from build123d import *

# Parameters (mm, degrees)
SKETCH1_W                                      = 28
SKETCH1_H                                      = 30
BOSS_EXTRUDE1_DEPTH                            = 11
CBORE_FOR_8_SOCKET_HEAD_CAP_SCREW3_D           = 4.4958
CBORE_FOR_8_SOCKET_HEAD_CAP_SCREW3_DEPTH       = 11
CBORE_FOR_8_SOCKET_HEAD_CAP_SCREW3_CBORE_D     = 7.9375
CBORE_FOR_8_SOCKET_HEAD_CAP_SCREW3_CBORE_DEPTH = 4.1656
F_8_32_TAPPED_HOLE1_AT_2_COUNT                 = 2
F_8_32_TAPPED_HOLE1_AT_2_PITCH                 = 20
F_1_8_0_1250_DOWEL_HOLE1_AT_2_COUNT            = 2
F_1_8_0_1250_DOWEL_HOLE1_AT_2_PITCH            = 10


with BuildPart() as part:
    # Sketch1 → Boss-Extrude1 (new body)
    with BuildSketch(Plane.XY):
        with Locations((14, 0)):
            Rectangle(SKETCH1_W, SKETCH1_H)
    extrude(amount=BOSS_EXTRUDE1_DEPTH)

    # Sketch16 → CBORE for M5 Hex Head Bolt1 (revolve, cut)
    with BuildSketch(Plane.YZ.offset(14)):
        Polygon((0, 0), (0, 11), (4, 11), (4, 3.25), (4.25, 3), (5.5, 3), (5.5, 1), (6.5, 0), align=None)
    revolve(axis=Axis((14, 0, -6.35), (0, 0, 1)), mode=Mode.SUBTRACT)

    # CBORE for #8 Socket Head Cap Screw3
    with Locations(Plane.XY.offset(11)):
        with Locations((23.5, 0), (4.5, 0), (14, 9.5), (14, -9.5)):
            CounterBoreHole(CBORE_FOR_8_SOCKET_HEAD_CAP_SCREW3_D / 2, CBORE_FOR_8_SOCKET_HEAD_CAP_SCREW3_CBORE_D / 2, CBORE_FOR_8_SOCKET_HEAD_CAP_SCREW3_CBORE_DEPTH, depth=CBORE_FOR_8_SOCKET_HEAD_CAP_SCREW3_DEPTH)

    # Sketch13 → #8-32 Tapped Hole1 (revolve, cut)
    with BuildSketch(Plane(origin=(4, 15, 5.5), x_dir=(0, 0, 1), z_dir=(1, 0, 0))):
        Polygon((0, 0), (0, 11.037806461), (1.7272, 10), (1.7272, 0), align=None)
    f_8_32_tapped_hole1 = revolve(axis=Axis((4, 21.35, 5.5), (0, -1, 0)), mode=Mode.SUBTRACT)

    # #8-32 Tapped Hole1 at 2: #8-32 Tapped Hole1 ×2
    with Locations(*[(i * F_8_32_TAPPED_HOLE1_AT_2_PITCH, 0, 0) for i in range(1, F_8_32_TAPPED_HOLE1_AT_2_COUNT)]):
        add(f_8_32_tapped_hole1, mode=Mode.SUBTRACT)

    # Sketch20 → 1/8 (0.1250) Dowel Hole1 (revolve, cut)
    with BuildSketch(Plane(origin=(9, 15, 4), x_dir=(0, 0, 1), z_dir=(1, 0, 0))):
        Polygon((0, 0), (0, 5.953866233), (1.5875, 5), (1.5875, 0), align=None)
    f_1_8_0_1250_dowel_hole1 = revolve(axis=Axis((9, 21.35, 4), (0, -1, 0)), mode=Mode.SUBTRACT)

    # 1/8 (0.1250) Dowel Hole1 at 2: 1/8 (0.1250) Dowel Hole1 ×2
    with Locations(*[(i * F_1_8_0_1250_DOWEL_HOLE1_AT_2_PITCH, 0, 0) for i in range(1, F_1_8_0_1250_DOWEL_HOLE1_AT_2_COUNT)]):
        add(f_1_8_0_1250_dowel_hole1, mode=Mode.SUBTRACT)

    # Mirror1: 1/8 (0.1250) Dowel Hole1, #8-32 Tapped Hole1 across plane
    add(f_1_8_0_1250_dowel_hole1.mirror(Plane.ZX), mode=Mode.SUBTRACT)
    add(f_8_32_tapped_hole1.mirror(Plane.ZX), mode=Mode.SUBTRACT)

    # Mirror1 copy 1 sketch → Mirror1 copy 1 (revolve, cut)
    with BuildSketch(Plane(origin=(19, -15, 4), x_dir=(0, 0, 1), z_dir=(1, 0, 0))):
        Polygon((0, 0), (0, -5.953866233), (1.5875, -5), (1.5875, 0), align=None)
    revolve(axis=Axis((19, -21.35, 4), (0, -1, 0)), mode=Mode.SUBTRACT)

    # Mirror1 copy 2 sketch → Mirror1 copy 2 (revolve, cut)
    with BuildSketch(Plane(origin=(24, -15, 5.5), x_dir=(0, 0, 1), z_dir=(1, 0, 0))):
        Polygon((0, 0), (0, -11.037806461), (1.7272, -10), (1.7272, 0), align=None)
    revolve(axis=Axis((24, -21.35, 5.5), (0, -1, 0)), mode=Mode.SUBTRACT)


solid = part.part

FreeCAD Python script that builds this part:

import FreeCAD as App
import Part
import Sketcher

V = App.Vector
Q = App.Units.Quantity

doc = App.newDocument("Part")
body = doc.addObject("PartDesign::Body", "Body")

sketch1 = body.newObject("Sketcher::SketchObject", "Sketch")
sketch1.AttachmentSupport = (doc.getObject("XY_Plane"), [""])
sketch1.MapMode = "FlatFace"
sketch1.addGeometry(Part.LineSegment(V(0, 15, 0), V(0, -15, 0)), False)
sketch1.addGeometry(Part.LineSegment(V(0, -15, 0), V(28, -15, 0)), False)
sketch1.addGeometry(Part.LineSegment(V(28, -15, 0), V(28, 15, 0)), False)
sketch1.addGeometry(Part.LineSegment(V(28, 15, 0), V(0, 15, 0)), False)
sketch1.addConstraint(Sketcher.Constraint("Coincident", 0, 2, 1, 1))
sketch1.addConstraint(Sketcher.Constraint("Coincident", 1, 2, 2, 1))
sketch1.addConstraint(Sketcher.Constraint("Coincident", 2, 2, 3, 1))
sketch1.addConstraint(Sketcher.Constraint("Coincident", 3, 2, 0, 1))
sketch1.addConstraint(Sketcher.Constraint("Vertical", 0))
sketch1.addConstraint(Sketcher.Constraint("Horizontal", 1))
sketch1.addConstraint(Sketcher.Constraint("Vertical", 2))
sketch1.addConstraint(Sketcher.Constraint("Horizontal", 3))
sketch1.addConstraint(Sketcher.Constraint("Symmetric", 0, 2, 3, 2, -1, 1))
sketch1.addConstraint(Sketcher.Constraint("DistanceX", 1, 1, 1, 2, 28.0))
sketch1.addConstraint(Sketcher.Constraint("DistanceY", 0, 2, 0, 1, 30.0))
pad1 = body.newObject("PartDesign::Pad", "Pad")
pad1.Profile = sketch1
pad1.Length = 11

sketch2 = body.newObject("Sketcher::SketchObject", "Sketch001")
sketch2.AttachmentSupport = (doc.getObject("YZ_Plane"), [""])
sketch2.MapMode = "FlatFace"
sketch2.AttachmentOffset = App.Placement(V(0, 0, 14), App.Rotation())
sketch2.addGeometry(Part.LineSegment(V(0, 11, 0), V(0, 0, 0)), False)
sketch2.addGeometry(Part.LineSegment(V(0, 0, 0), V(6.5, 0, 0)), False)
sketch2.addGeometry(Part.LineSegment(V(6.5, 0, 0), V(5.5, 1, 0)), False)
sketch2.addGeometry(Part.LineSegment(V(5.5, 1, 0), V(5.5, 3, 0)), False)
sketch2.addGeometry(Part.LineSegment(V(5.5, 3, 0), V(4.25, 3, 0)), False)
sketch2.addGeometry(Part.LineSegment(V(4.25, 3, 0), V(4, 3.25, 0)), False)
sketch2.addGeometry(Part.LineSegment(V(4, 3.25, 0), V(4, 11, 0)), False)
sketch2.addGeometry(Part.LineSegment(V(4, 11, 0), V(0, 11, 0)), False)
sketch2.addConstraint(Sketcher.Constraint("Coincident", 0, 2, 1, 1))
sketch2.addConstraint(Sketcher.Constraint("Coincident", 1, 2, 2, 1))
sketch2.addConstraint(Sketcher.Constraint("Coincident", 2, 2, 3, 1))
sketch2.addConstraint(Sketcher.Constraint("Coincident", 3, 2, 4, 1))
sketch2.addConstraint(Sketcher.Constraint("Coincident", 4, 2, 5, 1))
sketch2.addConstraint(Sketcher.Constraint("Coincident", 5, 2, 6, 1))
sketch2.addConstraint(Sketcher.Constraint("Coincident", 6, 2, 7, 1))
sketch2.addConstraint(Sketcher.Constraint("Coincident", 7, 2, 0, 1))
sketch2.addConstraint(Sketcher.Constraint("Vertical", 0))
sketch2.addConstraint(Sketcher.Constraint("Horizontal", 1))
sketch2.addConstraint(Sketcher.Constraint("Vertical", 3))
sketch2.addConstraint(Sketcher.Constraint("Horizontal", 4))
sketch2.addConstraint(Sketcher.Constraint("Vertical", 6))
sketch2.addConstraint(Sketcher.Constraint("Horizontal", 7))
sketch2.addConstraint(Sketcher.Constraint("Coincident", 0, 2, -1, 1))
sketch2.addConstraint(Sketcher.Constraint("Parallel", 2, 5))
sketch2.addConstraint(Sketcher.Constraint("DistanceX", 7, 2, 7, 1, 4.0))
sketch2.addConstraint(Sketcher.Constraint("DistanceY", 0, 2, 0, 1, 11.0))
sketch2.addConstraint(Sketcher.Constraint("DistanceY", 3, 1, 3, 2, 2.0))
sketch2.addConstraint(Sketcher.Constraint("Angle", 2, Q("135 deg")))
sketch2.addConstraint(Sketcher.Constraint("DistanceX", 1, 1, 1, 2, 6.5))
sketch2.addConstraint(Sketcher.Constraint("DistanceY", -1, 1, 2, 2, 1.0))
sketch2.addConstraint(Sketcher.Constraint("DistanceX", 4, 2, 4, 1, 1.25))
groove = body.newObject("PartDesign::Groove", "Groove")
groove.Profile = sketch2
groove.ReferenceAxis = (sketch2, ["V_Axis"])
groove.Angle = 360

sketch3 = body.newObject("Sketcher::SketchObject", "Sketch002")
sketch3.AttachmentSupport = (doc.getObject("XY_Plane"), [""])
sketch3.MapMode = "FlatFace"
sketch3.AttachmentOffset = App.Placement(V(0, 0, 11), App.Rotation())
sketch3.addGeometry(Part.Circle(V(23.5, 0, 0), V(0, 0, 1), 2.2), False)
sketch3.addGeometry(Part.Circle(V(4.5, 0, 0), V(0, 0, 1), 2.2), False)
sketch3.addGeometry(Part.Circle(V(14, 9.5, 0), V(0, 0, 1), 2.2), False)
sketch3.addGeometry(Part.Circle(V(14, -9.5, 0), V(0, 0, 1), 2.2), False)
sketch3.addConstraint(Sketcher.Constraint("Equal", 0, 1))
sketch3.addConstraint(Sketcher.Constraint("Equal", 1, 2))
sketch3.addConstraint(Sketcher.Constraint("Equal", 2, 3))
sketch3.addConstraint(Sketcher.Constraint("Symmetric", 2, 3, 3, 3, -1))
sketch3.addConstraint(Sketcher.Constraint("PointOnObject", 0, 3, -1))
sketch3.addConstraint(Sketcher.Constraint("PointOnObject", 1, 3, -1))
sketch3.addConstraint(Sketcher.Constraint("DistanceX", -1, 1, 2, 3, 14.0))
sketch3.addConstraint(Sketcher.Constraint("DistanceX", 1, 3, 0, 3, 19.0))
sketch3.addConstraint(Sketcher.Constraint("DistanceY", 3, 3, 2, 3, 19.0))
sketch3.addConstraint(Sketcher.Constraint("Diameter", 0, 4.4958))
sketch3.addConstraint(Sketcher.Constraint("DistanceX", -1, 1, 0, 3, 23.5))
doc.recompute()
hole = body.newObject("PartDesign::Hole", "Hole")
hole.Profile = sketch3
hole.ThreadType = "None"
hole.Diameter = 4.4958
hole.DepthType = "Dimension"
hole.Depth = 11
hole.DrillPoint = "Flat"
hole.HoleCutType = "Counterbore"
hole.HoleCutDiameter = 7.9375
hole.HoleCutDepth = 4.1656

sketch4 = body.newObject("Sketcher::SketchObject", "Sketch003")
sketch4.AttachmentSupport = (doc.getObject("YZ_Plane"), [""])
sketch4.MapMode = "FlatFace"
sketch4.AttachmentOffset = App.Placement(V(0, 0, 4), App.Rotation())
sketch4.addGeometry(Part.LineSegment(V(4, 5.5, 0), V(15, 5.5, 0)), False)
sketch4.addGeometry(Part.LineSegment(V(15, 5.5, 0), V(15, 7.2, 0)), False)
sketch4.addGeometry(Part.LineSegment(V(15, 7.2, 0), V(5, 7.2, 0)), False)
sketch4.addGeometry(Part.LineSegment(V(5, 7.2, 0), V(4, 5.5, 0)), False)
sketch4.addGeometry(Part.LineSegment(V(15, 5.5, 0), V(4, 5.5, 0)), True)
sketch4.addConstraint(Sketcher.Constraint("Coincident", 0, 2, 1, 1))
sketch4.addConstraint(Sketcher.Constraint("Coincident", 1, 2, 2, 1))
sketch4.addConstraint(Sketcher.Constraint("Coincident", 2, 2, 3, 1))
sketch4.addConstraint(Sketcher.Constraint("Coincident", 3, 2, 0, 1))
sketch4.addConstraint(Sketcher.Constraint("Horizontal", 0))
sketch4.addConstraint(Sketcher.Constraint("Vertical", 1))
sketch4.addConstraint(Sketcher.Constraint("Horizontal", 2))
sketch4.addConstraint(Sketcher.Constraint("Horizontal", 4))
sketch4.addConstraint(Sketcher.Constraint("Coincident", 4, 1, 0, 2))
sketch4.addConstraint(Sketcher.Constraint("Equal", 0, 4))
sketch4.addConstraint(Sketcher.Constraint("DistanceX", 2, 2, 2, 1, 10.0))
sketch4.addConstraint(Sketcher.Constraint("Angle", 3, Q("-121 deg")))
sketch4.addConstraint(Sketcher.Constraint("DistanceX", -1, 1, 0, 2, 15.0))
sketch4.addConstraint(Sketcher.Constraint("DistanceY", -1, 1, 0, 2, 5.5))
sketch4.addConstraint(Sketcher.Constraint("DistanceY", 1, 1, 1, 2, 1.7272))
groove2 = body.newObject("PartDesign::Groove", "Groove001")
groove2.Profile = sketch4
groove2.ReferenceAxis = (sketch4, ["Axis0"])
groove2.Angle = 360
doc.recompute()

linearpattern = body.newObject("PartDesign::LinearPattern", "LinearPattern")
linearpattern.Originals = [groove2]
linearpattern.Direction = (doc.getObject("X_Axis"), [""])
linearpattern.Mode = "offset"
linearpattern.Offset = 20
linearpattern.Occurrences = 2
body.Tip = linearpattern

sketch5 = body.newObject("Sketcher::SketchObject", "Sketch004")
sketch5.AttachmentSupport = (doc.getObject("YZ_Plane"), [""])
sketch5.MapMode = "FlatFace"
sketch5.AttachmentOffset = App.Placement(V(0, 0, 9), App.Rotation())
sketch5.addGeometry(Part.LineSegment(V(9, 4, 0), V(15, 4, 0)), False)
sketch5.addGeometry(Part.LineSegment(V(15, 4, 0), V(15, 5.6, 0)), False)
sketch5.addGeometry(Part.LineSegment(V(15, 5.6, 0), V(10, 5.6, 0)), False)
sketch5.addGeometry(Part.LineSegment(V(10, 5.6, 0), V(9, 4, 0)), False)
sketch5.addGeometry(Part.LineSegment(V(15, 4, 0), V(9, 4, 0)), True)
sketch5.addConstraint(Sketcher.Constraint("Coincident", 0, 2, 1, 1))
sketch5.addConstraint(Sketcher.Constraint("Coincident", 1, 2, 2, 1))
sketch5.addConstraint(Sketcher.Constraint("Coincident", 2, 2, 3, 1))
sketch5.addConstraint(Sketcher.Constraint("Coincident", 3, 2, 0, 1))
sketch5.addConstraint(Sketcher.Constraint("Horizontal", 0))
sketch5.addConstraint(Sketcher.Constraint("Vertical", 1))
sketch5.addConstraint(Sketcher.Constraint("Horizontal", 2))
sketch5.addConstraint(Sketcher.Constraint("Horizontal", 4))
sketch5.addConstraint(Sketcher.Constraint("Coincident", 4, 1, 0, 2))
sketch5.addConstraint(Sketcher.Constraint("Equal", 0, 4))
sketch5.addConstraint(Sketcher.Constraint("DistanceX", 2, 2, 2, 1, 5.0))
sketch5.addConstraint(Sketcher.Constraint("Angle", 3, Q("-121 deg")))
sketch5.addConstraint(Sketcher.Constraint("DistanceX", -1, 1, 0, 2, 15.0))
sketch5.addConstraint(Sketcher.Constraint("DistanceY", -1, 1, 0, 2, 4.0))
sketch5.addConstraint(Sketcher.Constraint("DistanceY", 1, 1, 1, 2, 1.5875))
groove3 = body.newObject("PartDesign::Groove", "Groove002")
groove3.Profile = sketch5
groove3.ReferenceAxis = (sketch5, ["Axis0"])
groove3.Angle = 360
doc.recompute()

linearpattern2 = body.newObject("PartDesign::LinearPattern", "LinearPattern001")
linearpattern2.Originals = [groove3]
linearpattern2.Direction = (doc.getObject("X_Axis"), [""])
linearpattern2.Mode = "offset"
linearpattern2.Offset = 10
linearpattern2.Occurrences = 2
body.Tip = linearpattern2
doc.recompute()

mirrored = body.newObject("PartDesign::Mirrored", "Mirrored")
mirrored.Originals = [groove3, groove2]
mirrored.MirrorPlane = (doc.getObject("XZ_Plane"), [""])
body.Tip = mirrored

sketch6 = body.newObject("Sketcher::SketchObject", "Sketch005")
sketch6.AttachmentSupport = (doc.getObject("YZ_Plane"), [""])
sketch6.MapMode = "FlatFace"
sketch6.AttachmentOffset = App.Placement(V(0, 0, 19), App.Rotation())
sketch6.addGeometry(Part.LineSegment(V(-15, 4, 0), V(-9, 4, 0)), False)
sketch6.addGeometry(Part.LineSegment(V(-9, 4, 0), V(-10, 5.6, 0)), False)
sketch6.addGeometry(Part.LineSegment(V(-10, 5.6, 0), V(-15, 5.6, 0)), False)
sketch6.addGeometry(Part.LineSegment(V(-15, 5.6, 0), V(-15, 4, 0)), False)
sketch6.addGeometry(Part.LineSegment(V(-9, 4, 0), V(-15, 4, 0)), True)
sketch6.addConstraint(Sketcher.Constraint("Coincident", 0, 2, 1, 1))
sketch6.addConstraint(Sketcher.Constraint("Coincident", 1, 2, 2, 1))
sketch6.addConstraint(Sketcher.Constraint("Coincident", 2, 2, 3, 1))
sketch6.addConstraint(Sketcher.Constraint("Coincident", 3, 2, 0, 1))
sketch6.addConstraint(Sketcher.Constraint("Horizontal", 0))
sketch6.addConstraint(Sketcher.Constraint("Horizontal", 2))
sketch6.addConstraint(Sketcher.Constraint("Vertical", 3))
sketch6.addConstraint(Sketcher.Constraint("Horizontal", 4))
sketch6.addConstraint(Sketcher.Constraint("Coincident", 4, 1, 0, 2))
sketch6.addConstraint(Sketcher.Constraint("Vertical", 2, 2, 4, 2))
sketch6.addConstraint(Sketcher.Constraint("DistanceX", 2, 2, 2, 1, 5.0))
sketch6.addConstraint(Sketcher.Constraint("Angle", 1, Q("121 deg")))
sketch6.addConstraint(Sketcher.Constraint("DistanceY", -1, 1, 0, 2, 4.0))
sketch6.addConstraint(Sketcher.Constraint("DistanceX", 1, 2, -1, 1, 10.0))
sketch6.addConstraint(Sketcher.Constraint("DistanceY", 3, 2, 3, 1, 1.5875))
groove4 = body.newObject("PartDesign::Groove", "Groove003")
groove4.Profile = sketch6
groove4.ReferenceAxis = (sketch6, ["Axis0"])
groove4.Angle = 360

sketch7 = body.newObject("Sketcher::SketchObject", "Sketch006")
sketch7.AttachmentSupport = (doc.getObject("YZ_Plane"), [""])
sketch7.MapMode = "FlatFace"
sketch7.AttachmentOffset = App.Placement(V(0, 0, 24), App.Rotation())
sketch7.addGeometry(Part.LineSegment(V(-15, 5.5, 0), V(-4, 5.5, 0)), False)
sketch7.addGeometry(Part.LineSegment(V(-4, 5.5, 0), V(-5, 7.2, 0)), False)
sketch7.addGeometry(Part.LineSegment(V(-5, 7.2, 0), V(-15, 7.2, 0)), False)
sketch7.addGeometry(Part.LineSegment(V(-15, 7.2, 0), V(-15, 5.5, 0)), False)
sketch7.addGeometry(Part.LineSegment(V(-4, 5.5, 0), V(-15, 5.5, 0)), True)
sketch7.addConstraint(Sketcher.Constraint("Coincident", 0, 2, 1, 1))
sketch7.addConstraint(Sketcher.Constraint("Coincident", 1, 2, 2, 1))
sketch7.addConstraint(Sketcher.Constraint("Coincident", 2, 2, 3, 1))
sketch7.addConstraint(Sketcher.Constraint("Coincident", 3, 2, 0, 1))
sketch7.addConstraint(Sketcher.Constraint("Horizontal", 0))
sketch7.addConstraint(Sketcher.Constraint("Horizontal", 2))
sketch7.addConstraint(Sketcher.Constraint("Vertical", 3))
sketch7.addConstraint(Sketcher.Constraint("Horizontal", 4))
sketch7.addConstraint(Sketcher.Constraint("Coincident", 4, 1, 0, 2))
sketch7.addConstraint(Sketcher.Constraint("Vertical", 2, 2, 4, 2))
sketch7.addConstraint(Sketcher.Constraint("DistanceX", 2, 2, 2, 1, 10.0))
sketch7.addConstraint(Sketcher.Constraint("Angle", 1, Q("121 deg")))
sketch7.addConstraint(Sketcher.Constraint("DistanceX", 1, 2, -1, 1, 5.0))
sketch7.addConstraint(Sketcher.Constraint("DistanceY", -1, 1, 0, 2, 5.5))
sketch7.addConstraint(Sketcher.Constraint("DistanceY", 3, 2, 3, 1, 1.7272))
groove5 = body.newObject("PartDesign::Groove", "Groove004")
groove5.Profile = sketch7
groove5.ReferenceAxis = (sketch7, ["Axis0"])
groove5.Angle = 360

doc.recompute()
